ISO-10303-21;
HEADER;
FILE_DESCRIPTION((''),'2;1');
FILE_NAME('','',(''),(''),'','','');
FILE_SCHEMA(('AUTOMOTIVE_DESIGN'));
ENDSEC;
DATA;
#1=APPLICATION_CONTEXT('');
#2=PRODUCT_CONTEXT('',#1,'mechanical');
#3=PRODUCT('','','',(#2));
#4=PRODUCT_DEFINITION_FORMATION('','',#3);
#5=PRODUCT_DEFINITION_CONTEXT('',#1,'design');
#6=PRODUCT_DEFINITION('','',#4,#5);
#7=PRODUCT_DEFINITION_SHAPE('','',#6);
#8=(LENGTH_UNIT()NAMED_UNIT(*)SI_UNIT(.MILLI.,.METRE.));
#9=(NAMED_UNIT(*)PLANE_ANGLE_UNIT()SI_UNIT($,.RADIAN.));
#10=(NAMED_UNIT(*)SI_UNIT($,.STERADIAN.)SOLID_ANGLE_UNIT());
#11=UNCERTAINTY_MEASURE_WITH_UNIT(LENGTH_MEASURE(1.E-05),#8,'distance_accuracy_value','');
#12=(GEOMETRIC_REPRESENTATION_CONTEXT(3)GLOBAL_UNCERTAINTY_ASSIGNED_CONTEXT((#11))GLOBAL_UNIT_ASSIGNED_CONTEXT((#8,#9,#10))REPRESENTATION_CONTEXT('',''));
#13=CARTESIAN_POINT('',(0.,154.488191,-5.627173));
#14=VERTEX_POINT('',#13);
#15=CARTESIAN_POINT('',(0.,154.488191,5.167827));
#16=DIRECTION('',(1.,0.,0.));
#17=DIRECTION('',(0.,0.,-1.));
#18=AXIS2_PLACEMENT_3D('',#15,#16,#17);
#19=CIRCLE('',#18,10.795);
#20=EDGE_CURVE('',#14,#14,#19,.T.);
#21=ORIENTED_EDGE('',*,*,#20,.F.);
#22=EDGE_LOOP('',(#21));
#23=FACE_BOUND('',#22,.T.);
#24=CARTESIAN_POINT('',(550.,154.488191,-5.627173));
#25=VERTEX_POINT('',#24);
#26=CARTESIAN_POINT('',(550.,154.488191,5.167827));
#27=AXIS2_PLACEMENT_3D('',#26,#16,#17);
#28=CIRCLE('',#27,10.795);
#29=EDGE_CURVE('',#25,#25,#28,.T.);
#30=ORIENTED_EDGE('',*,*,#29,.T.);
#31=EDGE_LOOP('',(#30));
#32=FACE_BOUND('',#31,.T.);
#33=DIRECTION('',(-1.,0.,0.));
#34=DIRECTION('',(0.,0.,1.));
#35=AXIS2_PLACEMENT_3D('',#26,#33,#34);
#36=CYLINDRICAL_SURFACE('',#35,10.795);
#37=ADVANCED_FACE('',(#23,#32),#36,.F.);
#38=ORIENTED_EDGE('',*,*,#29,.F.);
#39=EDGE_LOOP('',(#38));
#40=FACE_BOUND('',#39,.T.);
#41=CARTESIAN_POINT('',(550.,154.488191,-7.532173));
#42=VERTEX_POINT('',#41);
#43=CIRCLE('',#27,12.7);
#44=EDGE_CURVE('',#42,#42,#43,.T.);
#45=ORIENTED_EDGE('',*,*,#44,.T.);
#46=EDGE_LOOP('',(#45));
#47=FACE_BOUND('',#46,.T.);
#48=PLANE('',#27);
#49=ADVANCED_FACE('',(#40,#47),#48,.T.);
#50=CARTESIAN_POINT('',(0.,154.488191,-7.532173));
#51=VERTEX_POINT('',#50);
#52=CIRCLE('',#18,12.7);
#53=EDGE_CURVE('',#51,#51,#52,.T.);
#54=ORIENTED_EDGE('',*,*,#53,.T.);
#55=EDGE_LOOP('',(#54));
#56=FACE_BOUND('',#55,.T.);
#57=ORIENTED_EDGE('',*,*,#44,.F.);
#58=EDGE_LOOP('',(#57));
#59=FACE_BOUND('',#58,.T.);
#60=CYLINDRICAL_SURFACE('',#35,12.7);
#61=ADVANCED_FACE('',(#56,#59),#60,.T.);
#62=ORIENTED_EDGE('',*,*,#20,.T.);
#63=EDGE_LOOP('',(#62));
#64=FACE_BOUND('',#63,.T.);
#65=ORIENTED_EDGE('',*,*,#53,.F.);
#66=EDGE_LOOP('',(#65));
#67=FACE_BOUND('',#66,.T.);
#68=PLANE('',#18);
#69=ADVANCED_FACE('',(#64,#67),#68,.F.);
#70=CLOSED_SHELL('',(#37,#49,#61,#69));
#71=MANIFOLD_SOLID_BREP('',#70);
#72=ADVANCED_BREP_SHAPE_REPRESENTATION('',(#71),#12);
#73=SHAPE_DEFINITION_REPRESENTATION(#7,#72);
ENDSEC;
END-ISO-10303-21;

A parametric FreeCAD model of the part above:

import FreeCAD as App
import Part
import Sketcher

V = App.Vector
Q = App.Units.Quantity

doc = App.newDocument("Part")
body = doc.addObject("PartDesign::Body", "Body")

# Sketch on YZ plane
sketch1 = body.newObject("Sketcher::SketchObject", "Sketch")
sketch1.AttachmentSupport = (doc.getObject("YZ_Plane"), [""])
sketch1.MapMode = "FlatFace"
sketch1.addGeometry(Part.Circle(V(154, 5, 0), V(0, 0, 1), 13), False)
sketch1.addGeometry(Part.Circle(V(154, 5, 0), V(0, 0, 1), 11), False)
sketch1.addConstraint(Sketcher.Constraint("Coincident", 1, 3, 0, 3))
sketch1.addConstraint(Sketcher.Constraint("Diameter", 0, Q("1 in")))
sketch1.addConstraint(Sketcher.Constraint("Diameter", 1, Q("0.85 in")))
sketch1.addConstraint(Sketcher.Constraint("DistanceX", -1, 1, 0, 3, Q("154.488191 mm")))
sketch1.addConstraint(Sketcher.Constraint("DistanceY", -1, 1, 0, 3, Q("5.167827 mm")))
pad1 = body.newObject("PartDesign::Pad", "Pad")
pad1.Profile = sketch1
pad1.Length = 550

doc.recompute()
